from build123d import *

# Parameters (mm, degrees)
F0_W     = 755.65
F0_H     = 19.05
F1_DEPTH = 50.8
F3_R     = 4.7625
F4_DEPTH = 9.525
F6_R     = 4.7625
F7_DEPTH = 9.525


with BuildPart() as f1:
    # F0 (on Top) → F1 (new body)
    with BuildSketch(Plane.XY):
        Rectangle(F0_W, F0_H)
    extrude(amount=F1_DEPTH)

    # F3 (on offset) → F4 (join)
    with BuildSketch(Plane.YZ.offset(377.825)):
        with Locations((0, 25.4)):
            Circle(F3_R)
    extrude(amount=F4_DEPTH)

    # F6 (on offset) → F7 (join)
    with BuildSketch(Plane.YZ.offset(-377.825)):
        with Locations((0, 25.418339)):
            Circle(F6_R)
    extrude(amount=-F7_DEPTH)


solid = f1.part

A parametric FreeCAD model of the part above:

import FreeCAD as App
import Part
import Sketcher
Q = App.Units.Quantity


def add_polygon(sketch, points):
    """Adds a closed chain of lines whose ends are joined by coincident constraints."""
    first, n = sketch.GeometryCount, len(points)
    for a, b in zip(points, points[1:] + points[:1]):
        sketch.addGeometry(Part.LineSegment(App.Vector(*a, 0), App.Vector(*b, 0)), False)
    for i in range(n):
        sketch.addConstraint(Sketcher.Constraint("Coincident", first + i, 2, first + (i + 1) % n, 1))

doc = App.newDocument("Part")
body = doc.addObject("PartDesign::Body", "Body")

# Sketch on XY plane
sketch1 = doc.addObject("Sketcher::SketchObject", "Sketch")
body.addObject(sketch1)
sketch1.AttachmentSupport = (doc.XY_Plane, [""])
sketch1.MapMode = "FlatFace"
add_polygon(sketch1, [(-378, 10), (-378, -10), (378, -10), (378, 10)])  # lines 0-3
sketch1.addConstraint(Sketcher.Constraint("Vertical", 0))
sketch1.addConstraint(Sketcher.Constraint("Horizontal", 1))
sketch1.addConstraint(Sketcher.Constraint("Vertical", 2))
sketch1.addConstraint(Sketcher.Constraint("Horizontal", 3))
sketch1.addConstraint(Sketcher.Constraint("Symmetric", 0, 2, 2, 2, -1, 1))
sketch1.addConstraint(Sketcher.Constraint("DistanceX", 1, 1, 1, 2, Q("29.75 in")))
sketch1.addConstraint(Sketcher.Constraint("DistanceY", 0, 2, 0, 1, Q("0.75 in")))
pad1 = doc.addObject("PartDesign::Pad", "Pad")
body.addObject(pad1)
pad1.Profile = sketch1
pad1.Length = Q("2 in")

# Sketch on YZ plane
sketch2 = doc.addObject("Sketcher::SketchObject", "Sketch001")
body.addObject(sketch2)
sketch2.AttachmentSupport = (doc.YZ_Plane, [""])
sketch2.MapMode = "FlatFace"
sketch2.AttachmentOffset = App.Placement(App.Vector(0, 0, 14.875 * 25.4), App.Rotation())
sketch2.addGeometry(Part.Circle(App.Vector(0, 25.4, 0), App.Vector(0, 0, 1), 4.8), False)
sketch2.addConstraint(Sketcher.Constraint("PointOnObject", 0, 3, -2))
sketch2.addConstraint(Sketcher.Constraint("Diameter", 0, Q("0.375 in")))
sketch2.addConstraint(Sketcher.Constraint("DistanceY", -1, 1, 0, 3, Q("1 in")))
pad2 = doc.addObject("PartDesign::Pad", "Pad001")
body.addObject(pad2)
pad2.Profile = sketch2
pad2.Length = Q("0.375 in")

# Sketch on YZ plane
sketch3 = doc.addObject("Sketcher::SketchObject", "Sketch002")
body.addObject(sketch3)
sketch3.AttachmentSupport = (doc.YZ_Plane, [""])
sketch3.MapMode = "FlatFace"
sketch3.AttachmentOffset = App.Placement(App.Vector(0, 0, -14.875 * 25.4), App.Rotation())
sketch3.addGeometry(Part.Circle(App.Vector(0, 25.4, 0), App.Vector(0, 0, 1), 4.8), False)
sketch3.addConstraint(Sketcher.Constraint("PointOnObject", 0, 3, -2))
sketch3.addConstraint(Sketcher.Constraint("Diameter", 0, Q("0.375 in")))
sketch3.addConstraint(Sketcher.Constraint("DistanceY", -1, 1, 0, 3, 25.418339))
pad3 = doc.addObject("PartDesign::Pad", "Pad002")
body.addObject(pad3)
pad3.Profile = sketch3
pad3.Length = Q("0.375 in")
pad3.Reversed = True

doc.recompute()
